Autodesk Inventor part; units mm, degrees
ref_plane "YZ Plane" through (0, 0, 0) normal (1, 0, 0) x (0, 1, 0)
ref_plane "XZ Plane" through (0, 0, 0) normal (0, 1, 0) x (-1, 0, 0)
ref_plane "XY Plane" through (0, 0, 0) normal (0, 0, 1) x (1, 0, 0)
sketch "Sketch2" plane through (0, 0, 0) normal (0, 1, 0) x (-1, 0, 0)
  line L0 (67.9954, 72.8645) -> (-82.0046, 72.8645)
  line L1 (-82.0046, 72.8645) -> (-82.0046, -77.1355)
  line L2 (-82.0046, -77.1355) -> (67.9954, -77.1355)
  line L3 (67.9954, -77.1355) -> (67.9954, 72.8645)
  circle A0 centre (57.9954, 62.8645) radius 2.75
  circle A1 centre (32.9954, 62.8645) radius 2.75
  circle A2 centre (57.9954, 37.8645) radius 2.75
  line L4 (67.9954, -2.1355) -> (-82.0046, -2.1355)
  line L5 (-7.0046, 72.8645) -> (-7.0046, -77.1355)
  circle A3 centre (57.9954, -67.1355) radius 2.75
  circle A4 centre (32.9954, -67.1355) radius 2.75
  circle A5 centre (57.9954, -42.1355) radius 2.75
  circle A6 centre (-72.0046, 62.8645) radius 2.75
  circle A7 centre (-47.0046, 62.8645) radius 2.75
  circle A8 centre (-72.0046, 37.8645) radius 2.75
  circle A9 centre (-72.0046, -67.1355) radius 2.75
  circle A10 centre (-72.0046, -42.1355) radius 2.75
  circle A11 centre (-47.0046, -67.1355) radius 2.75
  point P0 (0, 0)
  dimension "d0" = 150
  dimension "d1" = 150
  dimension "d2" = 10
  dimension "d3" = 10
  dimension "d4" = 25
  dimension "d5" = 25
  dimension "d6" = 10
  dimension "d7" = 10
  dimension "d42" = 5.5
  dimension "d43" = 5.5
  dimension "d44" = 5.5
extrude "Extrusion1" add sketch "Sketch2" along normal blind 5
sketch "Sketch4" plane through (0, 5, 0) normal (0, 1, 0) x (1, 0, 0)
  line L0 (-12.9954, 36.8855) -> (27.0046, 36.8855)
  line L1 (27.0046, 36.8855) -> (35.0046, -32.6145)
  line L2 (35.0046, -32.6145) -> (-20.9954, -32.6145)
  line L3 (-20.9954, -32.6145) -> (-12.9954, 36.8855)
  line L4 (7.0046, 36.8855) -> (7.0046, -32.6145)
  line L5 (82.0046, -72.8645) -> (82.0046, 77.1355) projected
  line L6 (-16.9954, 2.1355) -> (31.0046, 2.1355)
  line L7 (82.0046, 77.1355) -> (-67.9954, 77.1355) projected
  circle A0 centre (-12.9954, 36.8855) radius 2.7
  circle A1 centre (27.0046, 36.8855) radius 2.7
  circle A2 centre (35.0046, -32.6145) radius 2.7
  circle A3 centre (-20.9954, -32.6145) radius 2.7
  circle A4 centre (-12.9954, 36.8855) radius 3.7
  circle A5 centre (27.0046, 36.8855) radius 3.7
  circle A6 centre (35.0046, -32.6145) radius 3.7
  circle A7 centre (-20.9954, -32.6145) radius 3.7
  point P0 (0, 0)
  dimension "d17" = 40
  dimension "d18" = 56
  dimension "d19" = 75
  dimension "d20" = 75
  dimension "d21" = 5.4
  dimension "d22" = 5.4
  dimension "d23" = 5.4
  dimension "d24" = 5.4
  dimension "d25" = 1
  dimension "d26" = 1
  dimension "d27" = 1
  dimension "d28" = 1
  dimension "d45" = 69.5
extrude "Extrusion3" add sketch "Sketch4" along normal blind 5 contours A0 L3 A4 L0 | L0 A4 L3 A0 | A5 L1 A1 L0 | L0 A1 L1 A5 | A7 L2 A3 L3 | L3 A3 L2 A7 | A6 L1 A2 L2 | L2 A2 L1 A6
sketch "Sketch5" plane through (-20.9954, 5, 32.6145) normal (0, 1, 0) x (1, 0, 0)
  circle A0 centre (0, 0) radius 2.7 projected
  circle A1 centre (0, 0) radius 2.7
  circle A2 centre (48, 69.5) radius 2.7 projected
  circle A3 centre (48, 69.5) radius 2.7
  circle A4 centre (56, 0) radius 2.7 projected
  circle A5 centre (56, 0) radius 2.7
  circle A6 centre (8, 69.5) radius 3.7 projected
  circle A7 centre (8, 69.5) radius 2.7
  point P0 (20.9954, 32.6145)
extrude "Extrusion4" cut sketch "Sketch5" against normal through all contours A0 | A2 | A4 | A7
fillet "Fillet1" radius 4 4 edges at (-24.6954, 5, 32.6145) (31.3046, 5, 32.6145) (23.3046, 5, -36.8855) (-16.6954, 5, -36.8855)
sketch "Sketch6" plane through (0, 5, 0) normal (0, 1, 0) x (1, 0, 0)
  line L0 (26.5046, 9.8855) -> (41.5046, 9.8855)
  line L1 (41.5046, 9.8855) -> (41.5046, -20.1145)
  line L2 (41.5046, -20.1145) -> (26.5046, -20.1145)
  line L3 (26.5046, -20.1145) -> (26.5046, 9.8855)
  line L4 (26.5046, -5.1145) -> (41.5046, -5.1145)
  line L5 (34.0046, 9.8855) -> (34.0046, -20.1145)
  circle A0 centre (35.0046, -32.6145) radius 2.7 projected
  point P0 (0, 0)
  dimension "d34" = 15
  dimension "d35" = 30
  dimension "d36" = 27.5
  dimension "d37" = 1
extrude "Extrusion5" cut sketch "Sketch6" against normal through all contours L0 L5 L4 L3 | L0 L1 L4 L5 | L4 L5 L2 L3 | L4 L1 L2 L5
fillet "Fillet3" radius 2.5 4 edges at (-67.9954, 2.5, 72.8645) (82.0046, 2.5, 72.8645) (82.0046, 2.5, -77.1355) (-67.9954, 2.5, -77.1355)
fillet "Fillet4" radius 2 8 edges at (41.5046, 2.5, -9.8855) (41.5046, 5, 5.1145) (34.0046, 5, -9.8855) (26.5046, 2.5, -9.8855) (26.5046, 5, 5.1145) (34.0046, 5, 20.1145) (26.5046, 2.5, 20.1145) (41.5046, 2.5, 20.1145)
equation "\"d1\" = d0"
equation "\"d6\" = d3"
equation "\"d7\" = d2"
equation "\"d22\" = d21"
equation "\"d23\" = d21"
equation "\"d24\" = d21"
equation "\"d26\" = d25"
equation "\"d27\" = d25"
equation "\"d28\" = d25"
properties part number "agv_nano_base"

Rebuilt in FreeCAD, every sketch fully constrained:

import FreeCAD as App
import Part
import Sketcher

V = App.Vector


def edges_at(feature, points):
    """Names of the edges that pass closest to the given points."""
    edges = feature.Shape.Edges
    near = lambda p: min(range(len(edges)), key=lambda i: edges[i].distToShape(Part.Vertex(*p))[0])
    return sorted({f"Edge{near(p) + 1}" for p in points})

doc = App.newDocument("Part")
body = doc.addObject("PartDesign::Body", "Body")

# Sketch on XZ plane
sketch1 = body.newObject("Sketcher::SketchObject", "Sketch")
sketch1.AttachmentSupport = (doc.getObject("XZ_Plane"), [""])
sketch1.MapMode = "FlatFace"
sketch1.addGeometry([
    Part.LineSegment(V(-68, 72.9, 0), V(82, 72.9, 0)),  # 0
    Part.LineSegment(V(82, 72.9, 0), V(82, -77.1, 0)),  # 1
    Part.LineSegment(V(82, -77.1, 0), V(-68, -77.1, 0)),  # 2
    Part.LineSegment(V(-68, -77.1, 0), V(-68, 72.9, 0)),  # 3
    Part.Circle(V(-58, 37.9, 0), V(0, 0, 1), 2.8),  # 4
    Part.Circle(V(-33, 62.9, 0), V(0, 0, 1), 2.8),  # 5
    Part.Circle(V(-58, 62.9, 0), V(0, 0, 1), 2.8),  # 6
    Part.Circle(V(-58, -42.1, 0), V(0, 0, 1), 2.8),  # 7
    Part.Circle(V(-33, -67.1, 0), V(0, 0, 1), 2.8),  # 8
    Part.Circle(V(-58, -67.1, 0), V(0, 0, 1), 2.8),  # 9
    Part.Circle(V(47, 62.9, 0), V(0, 0, 1), 2.8),  # 10
    Part.Circle(V(72, 37.9, 0), V(0, 0, 1), 2.8),  # 11
    Part.Circle(V(72, 62.9, 0), V(0, 0, 1), 2.8),  # 12
    Part.Circle(V(72, -42.1, 0), V(0, 0, 1), 2.8),  # 13
    Part.Circle(V(47, -67.1, 0), V(0, 0, 1), 2.8),  # 14
    Part.Circle(V(72, -67.1, 0), V(0, 0, 1), 2.8),  # 15
], False)
sketch1.addConstraint([
    Sketcher.Constraint("Coincident", 0, 2, 1, 1),
    Sketcher.Constraint("Coincident", 1, 2, 2, 1),
    Sketcher.Constraint("Coincident", 2, 2, 3, 1),
    Sketcher.Constraint("Coincident", 3, 2, 0, 1),
    Sketcher.Constraint("Horizontal", 0),
    Sketcher.Constraint("Vertical", 1),
    Sketcher.Constraint("Horizontal", 2),
    Sketcher.Constraint("Vertical", 3),
    Sketcher.Constraint("Equal", 4, 5),
    Sketcher.Constraint("Equal", 5, 6),
    Sketcher.Constraint("Equal", 6, 7),
    Sketcher.Constraint("Equal", 7, 8),
    Sketcher.Constraint("Equal", 8, 9),
    Sketcher.Constraint("Equal", 9, 10),
    Sketcher.Constraint("Equal", 10, 11),
    Sketcher.Constraint("Equal", 11, 12),
    Sketcher.Constraint("Equal", 12, 13),
    Sketcher.Constraint("Equal", 13, 14),
    Sketcher.Constraint("Equal", 14, 15),
    Sketcher.Constraint("Horizontal", 5, 3, 6, 3),
    Sketcher.Constraint("Horizontal", 8, 3, 9, 3),
    Sketcher.Constraint("Horizontal", 6, 3, 10, 3),
    Sketcher.Constraint("Horizontal", 4, 3, 11, 3),
    Sketcher.Constraint("Horizontal", 10, 3, 12, 3),
    Sketcher.Constraint("Horizontal", 7, 3, 13, 3),
    Sketcher.Constraint("Horizontal", 9, 3, 14, 3),
    Sketcher.Constraint("Horizontal", 14, 3, 15, 3),
    Sketcher.Constraint("Vertical", 4, 3, 6, 3),
    Sketcher.Constraint("Vertical", 6, 3, 7, 3),
    Sketcher.Constraint("Vertical", 5, 3, 8, 3),
    Sketcher.Constraint("Vertical", 7, 3, 9, 3),
    Sketcher.Constraint("Vertical", 11, 3, 12, 3),
    Sketcher.Constraint("Vertical", 12, 3, 13, 3),
    Sketcher.Constraint("Vertical", 10, 3, 14, 3),
    Sketcher.Constraint("Vertical", 13, 3, 15, 3),
    Sketcher.Constraint("Equal", 2, 1),
    Sketcher.Constraint("Diameter", 4, 5.5),
    Sketcher.Constraint("DistanceX", 0, 1, 0, 2, 150.0),
    Sketcher.Constraint("DistanceX", 4, 3, 5, 3, 25.0),
    Sketcher.Constraint("DistanceY", 4, 3, 5, 3, 25.0),
    Sketcher.Constraint("DistanceY", 8, 3, 7, 3, 25.0),
    Sketcher.Constraint("DistanceX", 10, 3, 11, 3, 25.0),
    Sketcher.Constraint("DistanceX", 12, 3, 0, 2, 10.0),
    Sketcher.Constraint("DistanceY", 12, 3, 0, 2, 10.0),
    Sketcher.Constraint("DistanceY", 1, 2, 15, 3, 10.0),
    Sketcher.Constraint("DistanceX", 2, 2, 9, 3, 10.0),
    Sketcher.Constraint("DistanceX", 4, 3, -1, 1, 57.9954),
    Sketcher.Constraint("DistanceY", -1, 1, 4, 3, 37.8645),
])
pad1 = body.newObject("PartDesign::Pad", "Pad")
pad1.Profile = sketch1
pad1.Length = 5
pad1.Reversed = True

# Sketch on XZ plane
sketch2 = body.newObject("Sketcher::SketchObject", "Sketch001")
sketch2.AttachmentSupport = (doc.getObject("XZ_Plane"), [""])
sketch2.MapMode = "FlatFace"
sketch2.AttachmentOffset = App.Placement(V(0, 0, -5), App.Rotation())
sketch2.addGeometry([
    Part.Circle(V(-13, -36.9, 0), V(0, 0, 1), 3.7),  # 0
    Part.Circle(V(-13, -36.9, 0), V(0, 0, 1), 2.7),  # 1
    Part.Circle(V(27, -36.9, 0), V(0, 0, 1), 3.7),  # 2
    Part.Circle(V(27, -36.9, 0), V(0, 0, 1), 2.7),  # 3
    Part.Circle(V(-21, 32.6, 0), V(0, 0, 1), 3.7),  # 4
    Part.Circle(V(-21, 32.6, 0), V(0, 0, 1), 2.7),  # 5
    Part.Circle(V(35, 32.6, 0), V(0, 0, 1), 3.7),  # 6
    Part.Circle(V(35, 32.6, 0), V(0, 0, 1), 2.7),  # 7
], False)
sketch2.addConstraint([
    Sketcher.Constraint("Coincident", 1, 3, 0, 3),
    Sketcher.Constraint("Coincident", 3, 3, 2, 3),
    Sketcher.Constraint("Coincident", 5, 3, 4, 3),
    Sketcher.Constraint("Coincident", 7, 3, 6, 3),
    Sketcher.Constraint("Equal", 0, 2),
    Sketcher.Constraint("Equal", 1, 3),
    Sketcher.Constraint("Equal", 2, 4),
    Sketcher.Constraint("Equal", 3, 5),
    Sketcher.Constraint("Equal", 4, 6),
    Sketcher.Constraint("Equal", 5, 7),
    Sketcher.Constraint("Horizontal", 1, 3, 2, 3),
    Sketcher.Constraint("Horizontal", 5, 3, 6, 3),
    Sketcher.Constraint("Diameter", 1, 5.4),
    Sketcher.Constraint("DistanceX", 0, 3, 2, 3, 40.0),
    Sketcher.Constraint("DistanceX", 4, 3, 6, 3, 56.0),
    Sketcher.Constraint("Diameter", 0, 7.4),
    Sketcher.Constraint("DistanceY", 0, 3, 4, 3, 69.5),
    Sketcher.Constraint("DistanceX", 4, 3, 0, 3, 8.0),
    Sketcher.Constraint("DistanceX", 0, 3, -1, 1, 12.9954),
    Sketcher.Constraint("DistanceY", 0, 3, -1, 1, 36.8855),
])
pad2 = body.newObject("PartDesign::Pad", "Pad001")
pad2.Profile = sketch2
pad2.Length = 5
pad2.Reversed = True

# Sketch on XZ plane
sketch3 = body.newObject("Sketcher::SketchObject", "Sketch002")
sketch3.AttachmentSupport = (doc.getObject("XZ_Plane"), [""])
sketch3.MapMode = "FlatFace"
sketch3.AttachmentOffset = App.Placement(V(0, 0, -5), App.Rotation())
sketch3.addGeometry([
    Part.Circle(V(-21, 32.6, 0), V(0, 0, 1), 2.7),
    Part.Circle(V(27, -36.9, 0), V(0, 0, 1), 2.7),
    Part.Circle(V(35, 32.6, 0), V(0, 0, 1), 2.7),
    Part.Circle(V(-13, -36.9, 0), V(0, 0, 1), 2.7),
], False)
sketch3.addConstraint([
    Sketcher.Constraint("Equal", 0, 1),
    Sketcher.Constraint("Equal", 1, 2),
    Sketcher.Constraint("Equal", 2, 3),
    Sketcher.Constraint("Horizontal", 0, 3, 2, 3),
    Sketcher.Constraint("Horizontal", 1, 3, 3, 3),
    Sketcher.Constraint("Diameter", 0, 5.4),
    Sketcher.Constraint("DistanceX", 0, 3, 1, 3, 48.0),
    Sketcher.Constraint("DistanceX", 0, 3, 2, 3, 56.0),
    Sketcher.Constraint("DistanceX", 3, 3, 1, 3, 40.0),
    Sketcher.Constraint("DistanceY", 1, 3, 0, 3, 69.5),
    Sketcher.Constraint("DistanceX", 0, 3, -1, 1, 20.9954),
    Sketcher.Constraint("DistanceY", -1, 1, 0, 3, 32.6145),
])
pocket1 = body.newObject("PartDesign::Pocket", "Pocket")
pocket1.Profile = sketch3
pocket1.Type = "ThroughAll"
pocket1.Reversed = True
doc.recompute()

fillet = body.newObject("PartDesign::Fillet", "Fillet")
fillet.Base = (pocket1, edges_at(pocket1, [
    (-24.695, 5, 32.614),
    (31.305, 5, 32.614),
    (23.305, 5, -36.886),
    (-16.695, 5, -36.886),
]))
fillet.Radius = 4

# Sketch on XZ plane
sketch4 = body.newObject("Sketcher::SketchObject", "Sketch003")
sketch4.AttachmentSupport = (doc.getObject("XZ_Plane"), [""])
sketch4.MapMode = "FlatFace"
sketch4.AttachmentOffset = App.Placement(V(0, 0, -5), App.Rotation())
sketch4.addGeometry([
    Part.LineSegment(V(27, -10, 0), V(27, 20, 0)),
    Part.LineSegment(V(27, 20, 0), V(42, 20, 0)),
    Part.LineSegment(V(42, 20, 0), V(42, -10, 0)),
    Part.LineSegment(V(42, -10, 0), V(27, -10, 0)),
], False)
sketch4.addConstraint([
    Sketcher.Constraint("Coincident", 0, 2, 1, 1),
    Sketcher.Constraint("Coincident", 1, 2, 2, 1),
    Sketcher.Constraint("Coincident", 2, 2, 3, 1),
    Sketcher.Constraint("Coincident", 3, 2, 0, 1),
    Sketcher.Constraint("Vertical", 0),
    Sketcher.Constraint("Horizontal", 1),
    Sketcher.Constraint("Vertical", 2),
    Sketcher.Constraint("Horizontal", 3),
    Sketcher.Constraint("DistanceX", 1, 1, 1, 2, 15.0),
    Sketcher.Constraint("DistanceY", 0, 1, 0, 2, 30.0),
    Sketcher.Constraint("DistanceX", -1, 1, 0, 2, 26.5046),
    Sketcher.Constraint("DistanceY", -1, 1, 0, 2, 20.1145),
])
pocket2 = body.newObject("PartDesign::Pocket", "Pocket001")
pocket2.Profile = sketch4
pocket2.Type = "ThroughAll"
pocket2.Reversed = True
doc.recompute()

fillet2 = body.newObject("PartDesign::Fillet", "Fillet001")
fillet2.Base = (pocket2, edges_at(pocket2, [
    (-67.995, 2.5, 72.865),
    (82.005, 2.5, 72.865),
    (82.005, 2.5, -77.135),
    (-67.995, 2.5, -77.135),
]))
fillet2.Radius = 2.5
doc.recompute()

fillet3 = body.newObject("PartDesign::Fillet", "Fillet002")
fillet3.Base = (fillet2, edges_at(fillet2, [
    (41.505, 2.5, -9.886),
    (41.505, 5, 5.114),
    (34.005, 5, -9.886),
    (26.505, 2.5, -9.886),
    (26.505, 5, 5.114),
    (34.005, 5, 20.114),
    (26.505, 2.5, 20.114),
    (41.505, 2.5, 20.114),
]))
fillet3.Radius = 2

doc.recompute()
